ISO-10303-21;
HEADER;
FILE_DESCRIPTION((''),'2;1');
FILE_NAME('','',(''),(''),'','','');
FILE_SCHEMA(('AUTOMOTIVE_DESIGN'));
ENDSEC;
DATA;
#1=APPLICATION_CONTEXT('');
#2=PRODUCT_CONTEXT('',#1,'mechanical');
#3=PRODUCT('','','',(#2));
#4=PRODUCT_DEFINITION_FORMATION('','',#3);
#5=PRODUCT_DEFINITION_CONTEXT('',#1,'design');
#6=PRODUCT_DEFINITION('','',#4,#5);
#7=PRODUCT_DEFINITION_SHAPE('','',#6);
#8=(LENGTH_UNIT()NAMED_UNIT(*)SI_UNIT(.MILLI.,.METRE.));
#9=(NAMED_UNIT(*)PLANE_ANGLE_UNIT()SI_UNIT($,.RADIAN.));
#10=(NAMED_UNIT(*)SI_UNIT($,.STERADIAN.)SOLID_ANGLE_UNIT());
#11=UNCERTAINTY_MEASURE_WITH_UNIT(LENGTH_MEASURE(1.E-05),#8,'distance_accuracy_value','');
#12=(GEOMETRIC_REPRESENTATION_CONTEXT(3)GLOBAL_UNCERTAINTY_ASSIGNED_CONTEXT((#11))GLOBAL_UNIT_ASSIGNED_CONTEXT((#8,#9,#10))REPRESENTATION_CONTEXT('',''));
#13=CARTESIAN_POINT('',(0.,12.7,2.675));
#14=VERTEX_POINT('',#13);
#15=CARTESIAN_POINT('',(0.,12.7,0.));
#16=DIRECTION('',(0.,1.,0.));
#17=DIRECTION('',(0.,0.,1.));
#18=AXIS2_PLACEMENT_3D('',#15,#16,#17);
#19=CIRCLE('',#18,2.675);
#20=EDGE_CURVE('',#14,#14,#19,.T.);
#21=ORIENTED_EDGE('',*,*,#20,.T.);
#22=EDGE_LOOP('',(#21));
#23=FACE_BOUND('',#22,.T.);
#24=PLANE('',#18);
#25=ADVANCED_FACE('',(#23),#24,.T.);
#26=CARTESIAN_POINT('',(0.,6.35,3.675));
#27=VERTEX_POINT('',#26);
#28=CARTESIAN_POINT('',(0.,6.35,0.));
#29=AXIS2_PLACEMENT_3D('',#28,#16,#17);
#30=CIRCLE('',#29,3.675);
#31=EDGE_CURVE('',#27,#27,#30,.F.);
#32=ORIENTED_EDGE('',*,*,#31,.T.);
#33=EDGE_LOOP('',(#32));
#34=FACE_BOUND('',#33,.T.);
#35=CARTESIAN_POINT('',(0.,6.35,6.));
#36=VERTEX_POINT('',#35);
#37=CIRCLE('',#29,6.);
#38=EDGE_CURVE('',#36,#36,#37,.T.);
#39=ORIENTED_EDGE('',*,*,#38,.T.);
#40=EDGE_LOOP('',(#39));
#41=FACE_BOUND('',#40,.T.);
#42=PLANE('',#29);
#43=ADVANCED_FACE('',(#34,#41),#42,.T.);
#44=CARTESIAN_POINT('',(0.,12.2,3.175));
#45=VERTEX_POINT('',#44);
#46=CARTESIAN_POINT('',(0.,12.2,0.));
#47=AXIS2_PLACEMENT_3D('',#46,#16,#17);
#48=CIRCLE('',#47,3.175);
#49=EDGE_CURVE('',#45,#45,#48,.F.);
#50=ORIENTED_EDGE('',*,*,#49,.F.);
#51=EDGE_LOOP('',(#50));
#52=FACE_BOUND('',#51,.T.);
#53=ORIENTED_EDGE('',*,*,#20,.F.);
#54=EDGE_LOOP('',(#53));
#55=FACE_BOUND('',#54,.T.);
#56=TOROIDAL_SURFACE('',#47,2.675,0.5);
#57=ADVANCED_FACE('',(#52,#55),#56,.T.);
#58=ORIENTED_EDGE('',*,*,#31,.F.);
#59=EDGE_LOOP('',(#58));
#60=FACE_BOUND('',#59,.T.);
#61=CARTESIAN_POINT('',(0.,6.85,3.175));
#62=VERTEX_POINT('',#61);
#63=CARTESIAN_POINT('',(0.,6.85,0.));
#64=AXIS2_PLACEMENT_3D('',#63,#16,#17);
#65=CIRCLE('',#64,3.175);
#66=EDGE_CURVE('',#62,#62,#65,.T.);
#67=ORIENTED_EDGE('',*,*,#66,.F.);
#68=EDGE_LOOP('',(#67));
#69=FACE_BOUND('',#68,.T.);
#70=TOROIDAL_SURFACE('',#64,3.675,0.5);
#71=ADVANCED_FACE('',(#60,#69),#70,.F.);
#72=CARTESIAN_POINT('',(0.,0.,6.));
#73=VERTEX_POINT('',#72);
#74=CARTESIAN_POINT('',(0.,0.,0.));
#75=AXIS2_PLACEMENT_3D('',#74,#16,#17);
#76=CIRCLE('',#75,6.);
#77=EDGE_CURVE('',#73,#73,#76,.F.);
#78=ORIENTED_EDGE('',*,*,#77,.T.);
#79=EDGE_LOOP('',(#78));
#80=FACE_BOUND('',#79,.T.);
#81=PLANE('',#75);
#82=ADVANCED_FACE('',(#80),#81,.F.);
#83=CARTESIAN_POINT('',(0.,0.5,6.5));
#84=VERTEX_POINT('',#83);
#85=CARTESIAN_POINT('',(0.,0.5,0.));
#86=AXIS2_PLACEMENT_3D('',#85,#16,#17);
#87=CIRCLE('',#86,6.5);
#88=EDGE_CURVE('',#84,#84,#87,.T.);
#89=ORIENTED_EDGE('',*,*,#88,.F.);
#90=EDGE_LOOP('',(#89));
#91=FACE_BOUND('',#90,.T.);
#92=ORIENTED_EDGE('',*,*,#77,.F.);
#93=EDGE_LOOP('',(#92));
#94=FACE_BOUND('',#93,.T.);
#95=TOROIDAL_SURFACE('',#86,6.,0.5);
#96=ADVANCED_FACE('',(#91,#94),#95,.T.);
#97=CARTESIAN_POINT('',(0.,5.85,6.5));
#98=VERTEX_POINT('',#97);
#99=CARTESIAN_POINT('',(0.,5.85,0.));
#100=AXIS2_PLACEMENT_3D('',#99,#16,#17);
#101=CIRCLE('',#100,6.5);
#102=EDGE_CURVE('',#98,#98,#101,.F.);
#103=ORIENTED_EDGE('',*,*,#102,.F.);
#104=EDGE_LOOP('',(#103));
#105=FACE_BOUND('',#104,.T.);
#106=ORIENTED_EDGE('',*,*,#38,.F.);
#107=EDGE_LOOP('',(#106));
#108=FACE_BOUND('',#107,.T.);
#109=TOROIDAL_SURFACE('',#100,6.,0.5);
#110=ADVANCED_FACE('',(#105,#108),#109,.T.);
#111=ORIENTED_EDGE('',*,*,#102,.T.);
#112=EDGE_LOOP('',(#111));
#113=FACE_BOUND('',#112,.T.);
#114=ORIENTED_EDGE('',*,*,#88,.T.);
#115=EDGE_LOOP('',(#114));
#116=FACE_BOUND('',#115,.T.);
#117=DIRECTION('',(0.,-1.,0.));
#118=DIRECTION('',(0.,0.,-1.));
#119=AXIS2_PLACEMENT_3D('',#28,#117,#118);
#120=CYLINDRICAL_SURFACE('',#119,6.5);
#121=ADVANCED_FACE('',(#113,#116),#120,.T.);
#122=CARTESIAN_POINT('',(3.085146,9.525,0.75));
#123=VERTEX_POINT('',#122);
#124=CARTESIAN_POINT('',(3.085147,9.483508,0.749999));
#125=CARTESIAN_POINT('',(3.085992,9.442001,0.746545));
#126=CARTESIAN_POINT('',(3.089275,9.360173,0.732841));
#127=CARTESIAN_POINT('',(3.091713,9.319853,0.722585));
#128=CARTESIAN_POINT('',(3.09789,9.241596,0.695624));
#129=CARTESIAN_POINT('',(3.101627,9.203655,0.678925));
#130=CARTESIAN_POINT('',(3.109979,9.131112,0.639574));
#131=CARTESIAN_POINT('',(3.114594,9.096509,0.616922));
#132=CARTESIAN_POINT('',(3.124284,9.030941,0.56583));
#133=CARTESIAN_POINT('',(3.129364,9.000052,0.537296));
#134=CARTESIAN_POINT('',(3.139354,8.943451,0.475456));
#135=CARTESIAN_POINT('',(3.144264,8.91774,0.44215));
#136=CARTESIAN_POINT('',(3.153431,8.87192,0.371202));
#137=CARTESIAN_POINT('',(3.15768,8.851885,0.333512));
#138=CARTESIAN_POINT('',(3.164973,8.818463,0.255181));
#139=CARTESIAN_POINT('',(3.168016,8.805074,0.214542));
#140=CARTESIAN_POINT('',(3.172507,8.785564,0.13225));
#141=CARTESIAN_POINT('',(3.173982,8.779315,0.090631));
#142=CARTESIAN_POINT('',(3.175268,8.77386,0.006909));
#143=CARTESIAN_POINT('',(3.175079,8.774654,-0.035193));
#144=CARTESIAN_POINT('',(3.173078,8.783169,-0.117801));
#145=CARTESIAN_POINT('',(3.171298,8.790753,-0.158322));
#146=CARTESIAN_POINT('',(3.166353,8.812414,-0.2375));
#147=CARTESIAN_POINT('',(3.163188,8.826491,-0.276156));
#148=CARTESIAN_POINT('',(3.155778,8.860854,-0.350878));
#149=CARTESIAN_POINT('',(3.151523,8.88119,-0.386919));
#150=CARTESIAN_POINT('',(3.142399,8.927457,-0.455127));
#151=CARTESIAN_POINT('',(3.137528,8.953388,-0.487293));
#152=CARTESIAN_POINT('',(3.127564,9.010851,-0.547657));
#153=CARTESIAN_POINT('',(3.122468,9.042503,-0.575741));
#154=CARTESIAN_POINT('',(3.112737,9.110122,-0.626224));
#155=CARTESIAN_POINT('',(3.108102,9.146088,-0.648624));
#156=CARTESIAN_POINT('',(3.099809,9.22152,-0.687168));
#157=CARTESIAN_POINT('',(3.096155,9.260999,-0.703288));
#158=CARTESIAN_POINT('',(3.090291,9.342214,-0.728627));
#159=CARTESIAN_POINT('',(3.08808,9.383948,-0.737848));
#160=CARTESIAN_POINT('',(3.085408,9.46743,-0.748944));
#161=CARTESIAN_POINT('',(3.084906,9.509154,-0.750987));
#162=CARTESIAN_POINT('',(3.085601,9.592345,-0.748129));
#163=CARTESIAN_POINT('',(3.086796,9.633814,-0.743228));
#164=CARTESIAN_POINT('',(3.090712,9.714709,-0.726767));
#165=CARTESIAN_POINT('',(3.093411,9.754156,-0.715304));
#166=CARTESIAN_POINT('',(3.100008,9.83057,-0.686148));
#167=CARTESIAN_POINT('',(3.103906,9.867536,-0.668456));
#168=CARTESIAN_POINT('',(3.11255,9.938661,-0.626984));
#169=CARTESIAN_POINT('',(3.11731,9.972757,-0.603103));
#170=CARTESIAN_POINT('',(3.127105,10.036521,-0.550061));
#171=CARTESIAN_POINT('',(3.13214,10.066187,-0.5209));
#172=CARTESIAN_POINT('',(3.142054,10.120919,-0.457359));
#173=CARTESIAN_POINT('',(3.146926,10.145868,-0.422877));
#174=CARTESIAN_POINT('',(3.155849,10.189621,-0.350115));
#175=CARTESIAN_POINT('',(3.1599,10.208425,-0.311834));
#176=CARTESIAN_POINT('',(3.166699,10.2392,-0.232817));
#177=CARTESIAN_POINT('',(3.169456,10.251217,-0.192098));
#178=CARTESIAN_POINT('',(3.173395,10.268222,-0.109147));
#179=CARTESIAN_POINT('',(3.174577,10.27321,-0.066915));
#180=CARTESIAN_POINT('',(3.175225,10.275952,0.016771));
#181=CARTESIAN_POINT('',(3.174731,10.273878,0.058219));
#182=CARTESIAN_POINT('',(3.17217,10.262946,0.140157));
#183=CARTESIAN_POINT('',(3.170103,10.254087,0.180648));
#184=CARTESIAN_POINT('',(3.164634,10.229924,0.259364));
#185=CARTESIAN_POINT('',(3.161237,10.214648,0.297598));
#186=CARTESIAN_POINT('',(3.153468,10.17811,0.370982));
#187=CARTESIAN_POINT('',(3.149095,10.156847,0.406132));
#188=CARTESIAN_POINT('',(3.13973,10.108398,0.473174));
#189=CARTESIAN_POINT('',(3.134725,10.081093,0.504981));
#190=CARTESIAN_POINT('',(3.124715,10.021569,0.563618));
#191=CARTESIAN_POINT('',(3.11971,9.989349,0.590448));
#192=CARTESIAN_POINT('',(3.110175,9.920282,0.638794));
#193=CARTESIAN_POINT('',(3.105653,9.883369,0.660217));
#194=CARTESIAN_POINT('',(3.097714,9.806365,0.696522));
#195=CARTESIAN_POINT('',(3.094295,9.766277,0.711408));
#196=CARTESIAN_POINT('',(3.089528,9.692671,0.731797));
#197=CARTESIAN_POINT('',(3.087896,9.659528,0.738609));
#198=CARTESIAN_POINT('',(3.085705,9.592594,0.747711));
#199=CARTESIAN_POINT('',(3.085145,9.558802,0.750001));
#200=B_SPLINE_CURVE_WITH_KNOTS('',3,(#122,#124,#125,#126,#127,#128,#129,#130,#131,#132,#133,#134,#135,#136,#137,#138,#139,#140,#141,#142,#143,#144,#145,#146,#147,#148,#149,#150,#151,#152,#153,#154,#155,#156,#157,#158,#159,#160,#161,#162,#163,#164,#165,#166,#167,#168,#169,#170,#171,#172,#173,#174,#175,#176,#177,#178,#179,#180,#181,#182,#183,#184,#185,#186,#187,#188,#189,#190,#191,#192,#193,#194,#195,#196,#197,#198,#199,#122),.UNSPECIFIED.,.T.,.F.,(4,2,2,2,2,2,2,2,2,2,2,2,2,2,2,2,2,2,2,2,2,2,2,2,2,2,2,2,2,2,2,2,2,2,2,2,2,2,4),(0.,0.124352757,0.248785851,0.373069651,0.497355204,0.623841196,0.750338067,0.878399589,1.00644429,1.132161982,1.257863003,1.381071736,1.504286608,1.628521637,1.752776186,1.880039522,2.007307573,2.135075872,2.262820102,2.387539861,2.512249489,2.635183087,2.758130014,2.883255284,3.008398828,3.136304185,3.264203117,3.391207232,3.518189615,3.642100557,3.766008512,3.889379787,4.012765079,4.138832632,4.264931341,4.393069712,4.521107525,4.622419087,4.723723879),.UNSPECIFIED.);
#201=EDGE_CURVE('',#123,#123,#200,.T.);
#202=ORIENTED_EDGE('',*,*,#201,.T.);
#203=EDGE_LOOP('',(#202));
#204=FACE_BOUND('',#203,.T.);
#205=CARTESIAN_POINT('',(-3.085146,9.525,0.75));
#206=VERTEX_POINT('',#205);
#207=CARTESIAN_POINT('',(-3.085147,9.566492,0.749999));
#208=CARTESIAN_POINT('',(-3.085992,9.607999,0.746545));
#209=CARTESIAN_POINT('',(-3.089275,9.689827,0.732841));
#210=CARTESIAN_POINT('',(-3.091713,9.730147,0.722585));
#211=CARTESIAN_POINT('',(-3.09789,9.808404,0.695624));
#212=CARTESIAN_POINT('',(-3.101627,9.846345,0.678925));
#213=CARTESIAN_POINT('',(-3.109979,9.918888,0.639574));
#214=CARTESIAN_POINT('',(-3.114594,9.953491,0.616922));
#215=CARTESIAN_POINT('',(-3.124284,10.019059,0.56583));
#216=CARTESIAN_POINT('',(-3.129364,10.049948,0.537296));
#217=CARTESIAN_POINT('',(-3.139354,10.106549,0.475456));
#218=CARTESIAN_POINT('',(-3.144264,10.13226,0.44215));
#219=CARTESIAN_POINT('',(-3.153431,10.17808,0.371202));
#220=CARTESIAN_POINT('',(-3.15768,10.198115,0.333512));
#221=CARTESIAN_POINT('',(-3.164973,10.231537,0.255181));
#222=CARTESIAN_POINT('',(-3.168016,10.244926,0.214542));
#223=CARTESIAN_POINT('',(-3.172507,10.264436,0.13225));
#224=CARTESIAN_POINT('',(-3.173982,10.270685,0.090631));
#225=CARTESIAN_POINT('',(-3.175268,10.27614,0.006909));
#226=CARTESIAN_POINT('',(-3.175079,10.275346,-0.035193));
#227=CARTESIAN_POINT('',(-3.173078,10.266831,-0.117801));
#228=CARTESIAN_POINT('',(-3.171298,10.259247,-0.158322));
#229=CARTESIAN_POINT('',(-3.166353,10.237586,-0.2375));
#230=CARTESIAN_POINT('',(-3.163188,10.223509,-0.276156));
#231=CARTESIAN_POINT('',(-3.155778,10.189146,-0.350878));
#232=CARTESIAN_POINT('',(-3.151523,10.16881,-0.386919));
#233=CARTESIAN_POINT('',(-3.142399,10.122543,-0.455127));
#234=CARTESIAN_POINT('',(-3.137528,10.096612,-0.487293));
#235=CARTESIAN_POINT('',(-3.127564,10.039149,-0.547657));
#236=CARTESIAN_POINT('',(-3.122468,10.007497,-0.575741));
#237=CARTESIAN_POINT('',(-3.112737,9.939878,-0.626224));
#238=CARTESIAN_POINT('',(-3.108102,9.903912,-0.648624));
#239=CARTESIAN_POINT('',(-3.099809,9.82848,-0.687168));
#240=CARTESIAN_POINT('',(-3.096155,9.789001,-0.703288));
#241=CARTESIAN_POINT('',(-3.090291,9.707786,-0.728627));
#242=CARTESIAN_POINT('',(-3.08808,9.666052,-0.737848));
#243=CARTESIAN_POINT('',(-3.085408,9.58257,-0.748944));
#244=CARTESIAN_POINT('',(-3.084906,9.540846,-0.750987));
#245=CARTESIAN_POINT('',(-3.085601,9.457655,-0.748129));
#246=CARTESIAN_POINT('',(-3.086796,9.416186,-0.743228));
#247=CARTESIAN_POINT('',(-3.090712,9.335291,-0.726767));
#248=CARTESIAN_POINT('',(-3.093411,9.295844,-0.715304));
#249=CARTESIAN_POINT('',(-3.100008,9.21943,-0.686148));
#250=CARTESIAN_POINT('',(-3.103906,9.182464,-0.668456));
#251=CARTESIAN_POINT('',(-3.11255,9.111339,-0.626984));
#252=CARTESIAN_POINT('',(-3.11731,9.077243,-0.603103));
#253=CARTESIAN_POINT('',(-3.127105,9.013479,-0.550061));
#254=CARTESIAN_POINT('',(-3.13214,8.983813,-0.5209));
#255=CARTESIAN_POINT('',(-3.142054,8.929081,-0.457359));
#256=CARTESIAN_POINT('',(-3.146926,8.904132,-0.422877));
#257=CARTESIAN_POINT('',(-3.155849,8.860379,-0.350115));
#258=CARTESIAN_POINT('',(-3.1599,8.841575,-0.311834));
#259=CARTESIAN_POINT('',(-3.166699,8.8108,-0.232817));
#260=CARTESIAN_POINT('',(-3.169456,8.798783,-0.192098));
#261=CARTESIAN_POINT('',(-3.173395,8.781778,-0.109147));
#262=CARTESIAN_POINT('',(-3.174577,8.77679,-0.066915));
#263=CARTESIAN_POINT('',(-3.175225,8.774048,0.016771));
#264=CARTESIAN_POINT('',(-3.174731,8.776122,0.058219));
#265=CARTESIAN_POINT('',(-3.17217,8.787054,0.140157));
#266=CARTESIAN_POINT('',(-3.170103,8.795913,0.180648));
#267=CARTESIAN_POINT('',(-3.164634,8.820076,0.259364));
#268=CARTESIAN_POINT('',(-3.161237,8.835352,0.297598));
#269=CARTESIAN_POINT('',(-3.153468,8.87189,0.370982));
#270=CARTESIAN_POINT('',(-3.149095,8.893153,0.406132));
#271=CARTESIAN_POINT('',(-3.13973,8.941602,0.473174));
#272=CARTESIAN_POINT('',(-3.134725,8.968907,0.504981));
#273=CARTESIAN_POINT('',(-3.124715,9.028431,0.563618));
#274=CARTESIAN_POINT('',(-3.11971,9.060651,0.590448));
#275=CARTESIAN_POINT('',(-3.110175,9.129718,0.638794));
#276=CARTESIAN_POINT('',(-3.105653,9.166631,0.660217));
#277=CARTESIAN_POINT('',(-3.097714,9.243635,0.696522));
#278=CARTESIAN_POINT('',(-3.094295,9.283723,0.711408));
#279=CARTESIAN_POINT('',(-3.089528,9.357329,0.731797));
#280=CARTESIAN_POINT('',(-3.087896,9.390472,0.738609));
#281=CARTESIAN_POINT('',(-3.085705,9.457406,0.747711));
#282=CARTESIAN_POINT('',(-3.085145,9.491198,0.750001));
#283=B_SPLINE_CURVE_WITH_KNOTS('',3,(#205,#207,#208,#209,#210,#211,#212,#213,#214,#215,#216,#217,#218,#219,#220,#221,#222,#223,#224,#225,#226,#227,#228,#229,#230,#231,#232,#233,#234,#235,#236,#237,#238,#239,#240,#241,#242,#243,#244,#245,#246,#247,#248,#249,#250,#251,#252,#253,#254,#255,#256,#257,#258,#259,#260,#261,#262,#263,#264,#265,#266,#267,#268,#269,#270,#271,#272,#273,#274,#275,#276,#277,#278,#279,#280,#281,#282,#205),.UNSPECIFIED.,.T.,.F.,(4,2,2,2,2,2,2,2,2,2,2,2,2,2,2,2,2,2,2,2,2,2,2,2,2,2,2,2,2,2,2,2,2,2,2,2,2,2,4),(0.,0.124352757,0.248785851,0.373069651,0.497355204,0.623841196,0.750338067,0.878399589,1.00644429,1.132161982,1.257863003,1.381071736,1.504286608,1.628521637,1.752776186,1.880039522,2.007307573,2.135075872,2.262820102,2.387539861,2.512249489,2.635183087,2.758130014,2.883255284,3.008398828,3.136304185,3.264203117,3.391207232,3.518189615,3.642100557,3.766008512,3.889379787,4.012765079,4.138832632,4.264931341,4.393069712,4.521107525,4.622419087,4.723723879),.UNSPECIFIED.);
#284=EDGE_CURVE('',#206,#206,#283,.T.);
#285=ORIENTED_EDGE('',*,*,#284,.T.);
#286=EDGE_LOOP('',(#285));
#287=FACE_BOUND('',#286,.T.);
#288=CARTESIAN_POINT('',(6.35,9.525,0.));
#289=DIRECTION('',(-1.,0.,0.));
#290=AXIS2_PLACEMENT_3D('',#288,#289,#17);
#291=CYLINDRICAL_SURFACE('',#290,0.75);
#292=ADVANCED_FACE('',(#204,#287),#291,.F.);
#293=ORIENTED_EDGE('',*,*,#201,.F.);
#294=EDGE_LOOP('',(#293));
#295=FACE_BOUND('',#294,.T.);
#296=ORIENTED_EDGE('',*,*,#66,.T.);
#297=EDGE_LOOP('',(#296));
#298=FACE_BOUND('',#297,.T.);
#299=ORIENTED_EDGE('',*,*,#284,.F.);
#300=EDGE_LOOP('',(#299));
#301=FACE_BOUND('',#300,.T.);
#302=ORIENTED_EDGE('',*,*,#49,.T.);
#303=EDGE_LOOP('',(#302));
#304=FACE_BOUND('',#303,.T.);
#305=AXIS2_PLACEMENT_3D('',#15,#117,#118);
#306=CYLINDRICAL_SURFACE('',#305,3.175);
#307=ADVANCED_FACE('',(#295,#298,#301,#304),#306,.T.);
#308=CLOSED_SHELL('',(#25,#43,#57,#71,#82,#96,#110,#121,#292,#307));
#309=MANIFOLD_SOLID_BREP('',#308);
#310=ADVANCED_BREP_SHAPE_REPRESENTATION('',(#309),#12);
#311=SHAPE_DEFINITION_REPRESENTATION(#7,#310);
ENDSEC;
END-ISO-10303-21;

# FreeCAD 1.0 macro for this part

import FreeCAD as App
import Part
import Sketcher
Q = App.Units.Quantity


def edges_at(feature, points):
    """Names of the edges that pass closest to the given points."""
    edges = feature.Shape.Edges
    near = lambda p: min(range(len(edges)), key=lambda i: edges[i].distToShape(Part.Vertex(*p))[0])
    return sorted({f"Edge{near(p) + 1}" for p in points})

doc = App.newDocument("Part")
params = doc.addObject("Spreadsheet::Sheet", "Params")
for row, (alias, value) in enumerate([
    ("sketch1_diameter", "13 mm"),
    ("pad1_length", "6.35 mm"),
    ("sketch2_diameter", "6.35 mm"),
    ("pad2_length", "6.35 mm"),
    ("sketch3_diameter", "1.5 mm"),
    ("fillet_radius", "0.5 mm"),
], start=1):
    params.set(f"A{row}", alias)
    params.set(f"B{row}", "=" + value)
    params.setAlias(f"B{row}", alias)

body = doc.addObject("PartDesign::Body", "Body")

# Sketch on XZ plane
sketch1 = doc.addObject("Sketcher::SketchObject", "Sketch")
body.addObject(sketch1)
sketch1.AttachmentSupport = (doc.XZ_Plane, [""])
sketch1.MapMode = "FlatFace"
sketch1.addGeometry(Part.Circle(App.Vector(0, 0, 0), App.Vector(0, 0, 1), 6), False)
sketch1.addConstraint([
    Sketcher.Constraint("Coincident", 0, 3, -1, 1),
    Sketcher.Constraint("Diameter", 0, Q("13 mm")),
])
sketch1.setExpression("Constraints[1]", "Params.sketch1_diameter")
pad1 = doc.addObject("PartDesign::Pad", "Pad")
body.addObject(pad1)
pad1.Profile = sketch1
pad1.setExpression("Length", "Params.pad1_length")
pad1.Reversed = True

# Sketch on XZ plane
sketch2 = doc.addObject("Sketcher::SketchObject", "Sketch001")
body.addObject(sketch2)
sketch2.AttachmentSupport = (doc.XZ_Plane, [""])
sketch2.MapMode = "FlatFace"
sketch2.AttachmentOffset = App.Placement(App.Vector(0, 0, -6.35), App.Rotation())
sketch2.addGeometry(Part.Circle(App.Vector(0, 0, 0), App.Vector(0, 0, 1), 3.2), False)
sketch2.addConstraint([
    Sketcher.Constraint("Coincident", 0, 3, -1, 1),
    Sketcher.Constraint("Diameter", 0, Q("6.35 mm")),
])
sketch2.setExpression("Constraints[1]", "Params.sketch2_diameter")
pad2 = doc.addObject("PartDesign::Pad", "Pad001")
body.addObject(pad2)
pad2.Profile = sketch2
pad2.setExpression("Length", "Params.pad2_length")
pad2.Reversed = True

# Sketch on YZ plane
sketch3 = doc.addObject("Sketcher::SketchObject", "Sketch002")
body.addObject(sketch3)
sketch3.AttachmentSupport = (doc.YZ_Plane, [""])
sketch3.MapMode = "FlatFace"
sketch3.addGeometry(Part.Circle(App.Vector(9.5, 0, 0), App.Vector(0, 0, 1), 0.8), False)
sketch3.addConstraint([
    Sketcher.Constraint("PointOnObject", 0, 3, -1),
    Sketcher.Constraint("Diameter", 0, Q("1.5 mm")),
    Sketcher.Constraint("DistanceX", -1, 1, 0, 3, Q("9.525 mm")),
])
sketch3.setExpression("Constraints[1]", "Params.sketch3_diameter")
pocket1 = doc.addObject("PartDesign::Pocket", "Pocket")
body.addObject(pocket1)
pocket1.Profile = sketch3
pocket1.Type = "ThroughAll"
pocket1.Midplane = True
doc.recompute()

fillet = doc.addObject("PartDesign::Fillet", "Fillet")
body.addObject(fillet)
fillet.Base = (pocket1, edges_at(pocket1, [
    (0, 0, -6.5),
    (0, 6.35, -6.5),
    (0, 6.35, -3.175),
    (0, 12.7, -3.175),
]))
fillet.setExpression("Radius", "Params.fillet_radius")

doc.recompute()
